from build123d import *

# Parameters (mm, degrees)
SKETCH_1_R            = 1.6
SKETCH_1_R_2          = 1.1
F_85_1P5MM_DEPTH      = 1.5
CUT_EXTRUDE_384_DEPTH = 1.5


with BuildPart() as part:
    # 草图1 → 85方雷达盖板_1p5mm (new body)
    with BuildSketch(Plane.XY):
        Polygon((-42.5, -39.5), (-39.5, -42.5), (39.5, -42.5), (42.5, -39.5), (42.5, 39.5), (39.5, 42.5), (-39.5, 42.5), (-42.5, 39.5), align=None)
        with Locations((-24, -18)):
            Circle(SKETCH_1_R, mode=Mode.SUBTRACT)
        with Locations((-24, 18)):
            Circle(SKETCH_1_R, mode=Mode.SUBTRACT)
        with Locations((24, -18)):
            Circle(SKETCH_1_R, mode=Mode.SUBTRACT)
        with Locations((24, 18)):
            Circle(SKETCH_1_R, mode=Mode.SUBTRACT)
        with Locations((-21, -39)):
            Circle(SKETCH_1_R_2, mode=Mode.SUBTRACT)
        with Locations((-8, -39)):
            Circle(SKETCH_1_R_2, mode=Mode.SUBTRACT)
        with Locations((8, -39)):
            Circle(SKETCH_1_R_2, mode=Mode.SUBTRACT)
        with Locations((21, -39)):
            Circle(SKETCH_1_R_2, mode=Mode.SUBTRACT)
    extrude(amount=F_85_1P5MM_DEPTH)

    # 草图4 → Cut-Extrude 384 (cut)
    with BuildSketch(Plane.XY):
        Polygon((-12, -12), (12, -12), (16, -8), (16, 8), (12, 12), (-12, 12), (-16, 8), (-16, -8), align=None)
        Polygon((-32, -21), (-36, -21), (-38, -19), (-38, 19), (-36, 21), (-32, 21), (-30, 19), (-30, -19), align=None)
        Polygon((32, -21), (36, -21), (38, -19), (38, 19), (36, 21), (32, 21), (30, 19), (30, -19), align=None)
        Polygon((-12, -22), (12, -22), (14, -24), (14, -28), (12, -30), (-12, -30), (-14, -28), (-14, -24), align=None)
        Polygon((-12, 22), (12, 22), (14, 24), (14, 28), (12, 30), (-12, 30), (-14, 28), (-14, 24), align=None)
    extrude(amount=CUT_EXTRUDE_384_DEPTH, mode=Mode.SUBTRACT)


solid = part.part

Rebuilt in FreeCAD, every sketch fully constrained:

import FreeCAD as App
import Part
import Sketcher

V = App.Vector


def add_polygon(sketch, points):
    """Adds a closed chain of lines whose ends are joined by coincident constraints."""
    first, n = sketch.GeometryCount, len(points)
    for a, b in zip(points, points[1:] + points[:1]):
        sketch.addGeometry(Part.LineSegment(App.Vector(*a, 0), App.Vector(*b, 0)), False)
    for i in range(n):
        sketch.addConstraint(Sketcher.Constraint("Coincident", first + i, 2, first + (i + 1) % n, 1))

doc = App.newDocument("Part")
body = doc.addObject("PartDesign::Body", "Body")

# Sketch on XY plane
sketch1 = body.newObject("Sketcher::SketchObject", "Sketch")
sketch1.AttachmentSupport = (doc.getObject("XY_Plane"), [""])
sketch1.MapMode = "FlatFace"
add_polygon(sketch1, [(-42.5, -39.5), (-39.5, -42.5), (39.5, -42.5), (42.5, -39.5), (42.5, 39.5), (39.5, 42.5), (-39.5, 42.5), (-42.5, 39.5)])  # lines 0-7
sketch1.addGeometry(Part.Circle(V(-21, -39, 0), V(0, 0, 1), 1.1), False)  # 8
sketch1.addGeometry(Part.Circle(V(-8, -39, 0), V(0, 0, 1), 1.1), False)  # 9
sketch1.addGeometry(Part.Circle(V(-24, -18, 0), V(0, 0, 1), 1.6), False)  # 10
sketch1.addGeometry(Part.Circle(V(8, -39, 0), V(0, 0, 1), 1.1), False)  # 11
sketch1.addGeometry(Part.Circle(V(21, -39, 0), V(0, 0, 1), 1.1), False)  # 12
sketch1.addGeometry(Part.Circle(V(24, -18, 0), V(0, 0, 1), 1.6), False)  # 13
sketch1.addGeometry(Part.Circle(V(-24, 18, 0), V(0, 0, 1), 1.6), False)  # 14
sketch1.addGeometry(Part.Circle(V(24, 18, 0), V(0, 0, 1), 1.6), False)  # 15
sketch1.addConstraint(Sketcher.Constraint("Horizontal", 1))
sketch1.addConstraint(Sketcher.Constraint("Vertical", 3))
sketch1.addConstraint(Sketcher.Constraint("Horizontal", 5))
sketch1.addConstraint(Sketcher.Constraint("Vertical", 7))
sketch1.addConstraint(Sketcher.Constraint("Equal", 8, 9))
sketch1.addConstraint(Sketcher.Constraint("Equal", 9, 11))
sketch1.addConstraint(Sketcher.Constraint("Equal", 11, 12))
sketch1.addConstraint(Sketcher.Constraint("Equal", 10, 13))
sketch1.addConstraint(Sketcher.Constraint("Equal", 13, 14))
sketch1.addConstraint(Sketcher.Constraint("Equal", 14, 15))
sketch1.addConstraint(Sketcher.Constraint("Symmetric", 13, 3, 14, 3, -1, 1))
sketch1.addConstraint(Sketcher.Constraint("Symmetric", 10, 3, 15, 3, -1, 1))
sketch1.addConstraint(Sketcher.Constraint("Symmetric", 0, 2, 4, 2, -1, 1))
sketch1.addConstraint(Sketcher.Constraint("Symmetric", 2, 2, 6, 2, -1, 1))
sketch1.addConstraint(Sketcher.Constraint("Symmetric", 9, 3, 11, 3, -2))
sketch1.addConstraint(Sketcher.Constraint("Symmetric", 8, 3, 12, 3, -2))
sketch1.addConstraint(Sketcher.Constraint("Symmetric", 10, 3, 13, 3, -2))
sketch1.addConstraint(Sketcher.Constraint("Perpendicular", 0, 2))
sketch1.addConstraint(Sketcher.Constraint("Perpendicular", 2, 4))
sketch1.addConstraint(Sketcher.Constraint("Perpendicular", 4, 6))
sketch1.addConstraint(Sketcher.Constraint("Horizontal", 8, 3, 9, 3))
sketch1.addConstraint(Sketcher.Constraint("Horizontal", 3, 2, 6, 2))
sketch1.addConstraint(Sketcher.Constraint("Vertical", 1, 2, 4, 2))
sketch1.addConstraint(Sketcher.Constraint("Equal", 5, 3))
sketch1.addConstraint(Sketcher.Constraint("Diameter", 8, 2.2))
sketch1.addConstraint(Sketcher.Constraint("Diameter", 10, 3.2))
sketch1.addConstraint(Sketcher.Constraint("DistanceX", 1, 1, 1, 2, 79.0))
sketch1.addConstraint(Sketcher.Constraint("DistanceX", 8, 3, -1, 1, 21.0))
sketch1.addConstraint(Sketcher.Constraint("DistanceY", 8, 3, -1, 1, 39.0))
sketch1.addConstraint(Sketcher.Constraint("DistanceX", 9, 3, -1, 1, 8.0))
sketch1.addConstraint(Sketcher.Constraint("DistanceX", 10, 3, -1, 1, 24.0))
sketch1.addConstraint(Sketcher.Constraint("DistanceY", 10, 3, -1, 1, 18.0))
sketch1.addConstraint(Sketcher.Constraint("DistanceX", 1, 2, 2, 2, 3.0))
pad1 = body.newObject("PartDesign::Pad", "Pad")
pad1.Profile = sketch1
pad1.Length = 1.5

# Sketch on XY plane
sketch2 = body.newObject("Sketcher::SketchObject", "Sketch001")
sketch2.AttachmentSupport = (doc.getObject("XY_Plane"), [""])
sketch2.MapMode = "FlatFace"
add_polygon(sketch2, [(-12, -12), (12, -12), (16, -8), (16, 8), (12, 12), (-12, 12), (-16, 8), (-16, -8)])  # lines 0-7
add_polygon(sketch2, [(-36, -21), (-32, -21), (-30, -19), (-30, 19), (-32, 21), (-36, 21), (-38, 19), (-38, -19)])  # lines 8-15
add_polygon(sketch2, [(32, -21), (36, -21), (38, -19), (38, 19), (36, 21), (32, 21), (30, 19), (30, -19)])  # lines 16-23
add_polygon(sketch2, [(12, -22), (-12, -22), (-14, -24), (-14, -28), (-12, -30), (12, -30), (14, -28), (14, -24)])  # lines 24-31
add_polygon(sketch2, [(-12, 22), (12, 22), (14, 24), (14, 28), (12, 30), (-12, 30), (-14, 28), (-14, 24)])  # lines 32-39
sketch2.addConstraint(Sketcher.Constraint("Horizontal", 0))
sketch2.addConstraint(Sketcher.Constraint("Vertical", 2))
sketch2.addConstraint(Sketcher.Constraint("Horizontal", 4))
sketch2.addConstraint(Sketcher.Constraint("Vertical", 6))
sketch2.addConstraint(Sketcher.Constraint("Horizontal", 8))
sketch2.addConstraint(Sketcher.Constraint("Vertical", 10))
sketch2.addConstraint(Sketcher.Constraint("Horizontal", 12))
sketch2.addConstraint(Sketcher.Constraint("Vertical", 14))
sketch2.addConstraint(Sketcher.Constraint("Horizontal", 16))
sketch2.addConstraint(Sketcher.Constraint("Vertical", 18))
sketch2.addConstraint(Sketcher.Constraint("Horizontal", 20))
sketch2.addConstraint(Sketcher.Constraint("Vertical", 22))
sketch2.addConstraint(Sketcher.Constraint("Horizontal", 24))
sketch2.addConstraint(Sketcher.Constraint("Vertical", 26))
sketch2.addConstraint(Sketcher.Constraint("Horizontal", 28))
sketch2.addConstraint(Sketcher.Constraint("Vertical", 30))
sketch2.addConstraint(Sketcher.Constraint("Horizontal", 32))
sketch2.addConstraint(Sketcher.Constraint("Vertical", 34))
sketch2.addConstraint(Sketcher.Constraint("Horizontal", 36))
sketch2.addConstraint(Sketcher.Constraint("Vertical", 38))
sketch2.addConstraint(Sketcher.Constraint("Symmetric", 0, 2, 4, 2, -1, 1))
sketch2.addConstraint(Sketcher.Constraint("Symmetric", 1, 2, 5, 2, -1, 1))
sketch2.addConstraint(Sketcher.Constraint("Symmetric", 12, 2, 16, 2, -1, 1))
sketch2.addConstraint(Sketcher.Constraint("Symmetric", 13, 2, 17, 2, -1, 1))
sketch2.addConstraint(Sketcher.Constraint("Symmetric", 15, 2, 19, 2, -1, 1))
sketch2.addConstraint(Sketcher.Constraint("Symmetric", 9, 2, 21, 2, -1, 1))
sketch2.addConstraint(Sketcher.Constraint("Symmetric", 24, 2, 32, 2, -1, 1))
sketch2.addConstraint(Sketcher.Constraint("Symmetric", 25, 2, 33, 2, -1, 1))
sketch2.addConstraint(Sketcher.Constraint("Symmetric", 27, 2, 35, 2, -1, 1))
sketch2.addConstraint(Sketcher.Constraint("Symmetric", 29, 2, 37, 2, -1, 1))
sketch2.addConstraint(Sketcher.Constraint("Symmetric", 15, 2, 16, 2, -2))
sketch2.addConstraint(Sketcher.Constraint("Symmetric", 26, 2, 29, 2, -2))
sketch2.addConstraint(Sketcher.Constraint("Perpendicular", 1, 3))
sketch2.addConstraint(Sketcher.Constraint("Perpendicular", 5, 7))
sketch2.addConstraint(Sketcher.Constraint("Perpendicular", 7, 9))
sketch2.addConstraint(Sketcher.Constraint("Perpendicular", 9, 11))
sketch2.addConstraint(Sketcher.Constraint("Perpendicular", 11, 13))
sketch2.addConstraint(Sketcher.Constraint("Perpendicular", 13, 15))
sketch2.addConstraint(Sketcher.Constraint("Perpendicular", 17, 19))
sketch2.addConstraint(Sketcher.Constraint("Perpendicular", 19, 21))
sketch2.addConstraint(Sketcher.Constraint("Perpendicular", 21, 23))
sketch2.addConstraint(Sketcher.Constraint("Perpendicular", 23, 25))
sketch2.addConstraint(Sketcher.Constraint("Perpendicular", 25, 27))
sketch2.addConstraint(Sketcher.Constraint("Perpendicular", 27, 29))
sketch2.addConstraint(Sketcher.Constraint("Perpendicular", 29, 31))
sketch2.addConstraint(Sketcher.Constraint("Perpendicular", 33, 35))
sketch2.addConstraint(Sketcher.Constraint("Perpendicular", 35, 37))
sketch2.addConstraint(Sketcher.Constraint("Perpendicular", 37, 39))
sketch2.addConstraint(Sketcher.Constraint("Horizontal", 2, 2, 5, 2))
sketch2.addConstraint(Sketcher.Constraint("Horizontal", 1, 2, 6, 2))
sketch2.addConstraint(Sketcher.Constraint("Horizontal", 10, 2, 13, 2))
sketch2.addConstraint(Sketcher.Constraint("Horizontal", 9, 2, 14, 2))
sketch2.addConstraint(Sketcher.Constraint("Horizontal", 14, 2, 17, 2))
sketch2.addConstraint(Sketcher.Constraint("Horizontal", 17, 2, 22, 2))
sketch2.addConstraint(Sketcher.Constraint("Horizontal", 25, 2, 30, 2))
sketch2.addConstraint(Sketcher.Constraint("Horizontal", 33, 2, 38, 2))
sketch2.addConstraint(Sketcher.Constraint("Vertical", 7, 2, 24, 2))
sketch2.addConstraint(Sketcher.Constraint("Vertical", 24, 2, 27, 2))
sketch2.addConstraint(Sketcher.Constraint("Equal", 20, 26))
sketch2.addConstraint(Sketcher.Constraint("Equal", 23, 25))
sketch2.addConstraint(Sketcher.Constraint("DistanceX", 0, 1, 0, 2, 24.0))
sketch2.addConstraint(Sketcher.Constraint("DistanceX", 8, 1, 8, 2, 4.0))
sketch2.addConstraint(Sketcher.Constraint("DistanceY", 2, 1, 2, 2, 16.0))
sketch2.addConstraint(Sketcher.Constraint("DistanceY", 10, 1, 10, 2, 38.0))
sketch2.addConstraint(Sketcher.Constraint("DistanceY", 0, 2, -1, 1, 12.0))
sketch2.addConstraint(Sketcher.Constraint("DistanceX", 8, 2, -1, 1, 32.0))
sketch2.addConstraint(Sketcher.Constraint("DistanceY", 8, 2, -1, 1, 21.0))
sketch2.addConstraint(Sketcher.Constraint("DistanceY", 24, 2, -1, 1, 22.0))
pocket1 = body.newObject("PartDesign::Pocket", "Pocket")
pocket1.Profile = sketch2
pocket1.Length = 1.5
pocket1.Reversed = True

doc.recompute()
